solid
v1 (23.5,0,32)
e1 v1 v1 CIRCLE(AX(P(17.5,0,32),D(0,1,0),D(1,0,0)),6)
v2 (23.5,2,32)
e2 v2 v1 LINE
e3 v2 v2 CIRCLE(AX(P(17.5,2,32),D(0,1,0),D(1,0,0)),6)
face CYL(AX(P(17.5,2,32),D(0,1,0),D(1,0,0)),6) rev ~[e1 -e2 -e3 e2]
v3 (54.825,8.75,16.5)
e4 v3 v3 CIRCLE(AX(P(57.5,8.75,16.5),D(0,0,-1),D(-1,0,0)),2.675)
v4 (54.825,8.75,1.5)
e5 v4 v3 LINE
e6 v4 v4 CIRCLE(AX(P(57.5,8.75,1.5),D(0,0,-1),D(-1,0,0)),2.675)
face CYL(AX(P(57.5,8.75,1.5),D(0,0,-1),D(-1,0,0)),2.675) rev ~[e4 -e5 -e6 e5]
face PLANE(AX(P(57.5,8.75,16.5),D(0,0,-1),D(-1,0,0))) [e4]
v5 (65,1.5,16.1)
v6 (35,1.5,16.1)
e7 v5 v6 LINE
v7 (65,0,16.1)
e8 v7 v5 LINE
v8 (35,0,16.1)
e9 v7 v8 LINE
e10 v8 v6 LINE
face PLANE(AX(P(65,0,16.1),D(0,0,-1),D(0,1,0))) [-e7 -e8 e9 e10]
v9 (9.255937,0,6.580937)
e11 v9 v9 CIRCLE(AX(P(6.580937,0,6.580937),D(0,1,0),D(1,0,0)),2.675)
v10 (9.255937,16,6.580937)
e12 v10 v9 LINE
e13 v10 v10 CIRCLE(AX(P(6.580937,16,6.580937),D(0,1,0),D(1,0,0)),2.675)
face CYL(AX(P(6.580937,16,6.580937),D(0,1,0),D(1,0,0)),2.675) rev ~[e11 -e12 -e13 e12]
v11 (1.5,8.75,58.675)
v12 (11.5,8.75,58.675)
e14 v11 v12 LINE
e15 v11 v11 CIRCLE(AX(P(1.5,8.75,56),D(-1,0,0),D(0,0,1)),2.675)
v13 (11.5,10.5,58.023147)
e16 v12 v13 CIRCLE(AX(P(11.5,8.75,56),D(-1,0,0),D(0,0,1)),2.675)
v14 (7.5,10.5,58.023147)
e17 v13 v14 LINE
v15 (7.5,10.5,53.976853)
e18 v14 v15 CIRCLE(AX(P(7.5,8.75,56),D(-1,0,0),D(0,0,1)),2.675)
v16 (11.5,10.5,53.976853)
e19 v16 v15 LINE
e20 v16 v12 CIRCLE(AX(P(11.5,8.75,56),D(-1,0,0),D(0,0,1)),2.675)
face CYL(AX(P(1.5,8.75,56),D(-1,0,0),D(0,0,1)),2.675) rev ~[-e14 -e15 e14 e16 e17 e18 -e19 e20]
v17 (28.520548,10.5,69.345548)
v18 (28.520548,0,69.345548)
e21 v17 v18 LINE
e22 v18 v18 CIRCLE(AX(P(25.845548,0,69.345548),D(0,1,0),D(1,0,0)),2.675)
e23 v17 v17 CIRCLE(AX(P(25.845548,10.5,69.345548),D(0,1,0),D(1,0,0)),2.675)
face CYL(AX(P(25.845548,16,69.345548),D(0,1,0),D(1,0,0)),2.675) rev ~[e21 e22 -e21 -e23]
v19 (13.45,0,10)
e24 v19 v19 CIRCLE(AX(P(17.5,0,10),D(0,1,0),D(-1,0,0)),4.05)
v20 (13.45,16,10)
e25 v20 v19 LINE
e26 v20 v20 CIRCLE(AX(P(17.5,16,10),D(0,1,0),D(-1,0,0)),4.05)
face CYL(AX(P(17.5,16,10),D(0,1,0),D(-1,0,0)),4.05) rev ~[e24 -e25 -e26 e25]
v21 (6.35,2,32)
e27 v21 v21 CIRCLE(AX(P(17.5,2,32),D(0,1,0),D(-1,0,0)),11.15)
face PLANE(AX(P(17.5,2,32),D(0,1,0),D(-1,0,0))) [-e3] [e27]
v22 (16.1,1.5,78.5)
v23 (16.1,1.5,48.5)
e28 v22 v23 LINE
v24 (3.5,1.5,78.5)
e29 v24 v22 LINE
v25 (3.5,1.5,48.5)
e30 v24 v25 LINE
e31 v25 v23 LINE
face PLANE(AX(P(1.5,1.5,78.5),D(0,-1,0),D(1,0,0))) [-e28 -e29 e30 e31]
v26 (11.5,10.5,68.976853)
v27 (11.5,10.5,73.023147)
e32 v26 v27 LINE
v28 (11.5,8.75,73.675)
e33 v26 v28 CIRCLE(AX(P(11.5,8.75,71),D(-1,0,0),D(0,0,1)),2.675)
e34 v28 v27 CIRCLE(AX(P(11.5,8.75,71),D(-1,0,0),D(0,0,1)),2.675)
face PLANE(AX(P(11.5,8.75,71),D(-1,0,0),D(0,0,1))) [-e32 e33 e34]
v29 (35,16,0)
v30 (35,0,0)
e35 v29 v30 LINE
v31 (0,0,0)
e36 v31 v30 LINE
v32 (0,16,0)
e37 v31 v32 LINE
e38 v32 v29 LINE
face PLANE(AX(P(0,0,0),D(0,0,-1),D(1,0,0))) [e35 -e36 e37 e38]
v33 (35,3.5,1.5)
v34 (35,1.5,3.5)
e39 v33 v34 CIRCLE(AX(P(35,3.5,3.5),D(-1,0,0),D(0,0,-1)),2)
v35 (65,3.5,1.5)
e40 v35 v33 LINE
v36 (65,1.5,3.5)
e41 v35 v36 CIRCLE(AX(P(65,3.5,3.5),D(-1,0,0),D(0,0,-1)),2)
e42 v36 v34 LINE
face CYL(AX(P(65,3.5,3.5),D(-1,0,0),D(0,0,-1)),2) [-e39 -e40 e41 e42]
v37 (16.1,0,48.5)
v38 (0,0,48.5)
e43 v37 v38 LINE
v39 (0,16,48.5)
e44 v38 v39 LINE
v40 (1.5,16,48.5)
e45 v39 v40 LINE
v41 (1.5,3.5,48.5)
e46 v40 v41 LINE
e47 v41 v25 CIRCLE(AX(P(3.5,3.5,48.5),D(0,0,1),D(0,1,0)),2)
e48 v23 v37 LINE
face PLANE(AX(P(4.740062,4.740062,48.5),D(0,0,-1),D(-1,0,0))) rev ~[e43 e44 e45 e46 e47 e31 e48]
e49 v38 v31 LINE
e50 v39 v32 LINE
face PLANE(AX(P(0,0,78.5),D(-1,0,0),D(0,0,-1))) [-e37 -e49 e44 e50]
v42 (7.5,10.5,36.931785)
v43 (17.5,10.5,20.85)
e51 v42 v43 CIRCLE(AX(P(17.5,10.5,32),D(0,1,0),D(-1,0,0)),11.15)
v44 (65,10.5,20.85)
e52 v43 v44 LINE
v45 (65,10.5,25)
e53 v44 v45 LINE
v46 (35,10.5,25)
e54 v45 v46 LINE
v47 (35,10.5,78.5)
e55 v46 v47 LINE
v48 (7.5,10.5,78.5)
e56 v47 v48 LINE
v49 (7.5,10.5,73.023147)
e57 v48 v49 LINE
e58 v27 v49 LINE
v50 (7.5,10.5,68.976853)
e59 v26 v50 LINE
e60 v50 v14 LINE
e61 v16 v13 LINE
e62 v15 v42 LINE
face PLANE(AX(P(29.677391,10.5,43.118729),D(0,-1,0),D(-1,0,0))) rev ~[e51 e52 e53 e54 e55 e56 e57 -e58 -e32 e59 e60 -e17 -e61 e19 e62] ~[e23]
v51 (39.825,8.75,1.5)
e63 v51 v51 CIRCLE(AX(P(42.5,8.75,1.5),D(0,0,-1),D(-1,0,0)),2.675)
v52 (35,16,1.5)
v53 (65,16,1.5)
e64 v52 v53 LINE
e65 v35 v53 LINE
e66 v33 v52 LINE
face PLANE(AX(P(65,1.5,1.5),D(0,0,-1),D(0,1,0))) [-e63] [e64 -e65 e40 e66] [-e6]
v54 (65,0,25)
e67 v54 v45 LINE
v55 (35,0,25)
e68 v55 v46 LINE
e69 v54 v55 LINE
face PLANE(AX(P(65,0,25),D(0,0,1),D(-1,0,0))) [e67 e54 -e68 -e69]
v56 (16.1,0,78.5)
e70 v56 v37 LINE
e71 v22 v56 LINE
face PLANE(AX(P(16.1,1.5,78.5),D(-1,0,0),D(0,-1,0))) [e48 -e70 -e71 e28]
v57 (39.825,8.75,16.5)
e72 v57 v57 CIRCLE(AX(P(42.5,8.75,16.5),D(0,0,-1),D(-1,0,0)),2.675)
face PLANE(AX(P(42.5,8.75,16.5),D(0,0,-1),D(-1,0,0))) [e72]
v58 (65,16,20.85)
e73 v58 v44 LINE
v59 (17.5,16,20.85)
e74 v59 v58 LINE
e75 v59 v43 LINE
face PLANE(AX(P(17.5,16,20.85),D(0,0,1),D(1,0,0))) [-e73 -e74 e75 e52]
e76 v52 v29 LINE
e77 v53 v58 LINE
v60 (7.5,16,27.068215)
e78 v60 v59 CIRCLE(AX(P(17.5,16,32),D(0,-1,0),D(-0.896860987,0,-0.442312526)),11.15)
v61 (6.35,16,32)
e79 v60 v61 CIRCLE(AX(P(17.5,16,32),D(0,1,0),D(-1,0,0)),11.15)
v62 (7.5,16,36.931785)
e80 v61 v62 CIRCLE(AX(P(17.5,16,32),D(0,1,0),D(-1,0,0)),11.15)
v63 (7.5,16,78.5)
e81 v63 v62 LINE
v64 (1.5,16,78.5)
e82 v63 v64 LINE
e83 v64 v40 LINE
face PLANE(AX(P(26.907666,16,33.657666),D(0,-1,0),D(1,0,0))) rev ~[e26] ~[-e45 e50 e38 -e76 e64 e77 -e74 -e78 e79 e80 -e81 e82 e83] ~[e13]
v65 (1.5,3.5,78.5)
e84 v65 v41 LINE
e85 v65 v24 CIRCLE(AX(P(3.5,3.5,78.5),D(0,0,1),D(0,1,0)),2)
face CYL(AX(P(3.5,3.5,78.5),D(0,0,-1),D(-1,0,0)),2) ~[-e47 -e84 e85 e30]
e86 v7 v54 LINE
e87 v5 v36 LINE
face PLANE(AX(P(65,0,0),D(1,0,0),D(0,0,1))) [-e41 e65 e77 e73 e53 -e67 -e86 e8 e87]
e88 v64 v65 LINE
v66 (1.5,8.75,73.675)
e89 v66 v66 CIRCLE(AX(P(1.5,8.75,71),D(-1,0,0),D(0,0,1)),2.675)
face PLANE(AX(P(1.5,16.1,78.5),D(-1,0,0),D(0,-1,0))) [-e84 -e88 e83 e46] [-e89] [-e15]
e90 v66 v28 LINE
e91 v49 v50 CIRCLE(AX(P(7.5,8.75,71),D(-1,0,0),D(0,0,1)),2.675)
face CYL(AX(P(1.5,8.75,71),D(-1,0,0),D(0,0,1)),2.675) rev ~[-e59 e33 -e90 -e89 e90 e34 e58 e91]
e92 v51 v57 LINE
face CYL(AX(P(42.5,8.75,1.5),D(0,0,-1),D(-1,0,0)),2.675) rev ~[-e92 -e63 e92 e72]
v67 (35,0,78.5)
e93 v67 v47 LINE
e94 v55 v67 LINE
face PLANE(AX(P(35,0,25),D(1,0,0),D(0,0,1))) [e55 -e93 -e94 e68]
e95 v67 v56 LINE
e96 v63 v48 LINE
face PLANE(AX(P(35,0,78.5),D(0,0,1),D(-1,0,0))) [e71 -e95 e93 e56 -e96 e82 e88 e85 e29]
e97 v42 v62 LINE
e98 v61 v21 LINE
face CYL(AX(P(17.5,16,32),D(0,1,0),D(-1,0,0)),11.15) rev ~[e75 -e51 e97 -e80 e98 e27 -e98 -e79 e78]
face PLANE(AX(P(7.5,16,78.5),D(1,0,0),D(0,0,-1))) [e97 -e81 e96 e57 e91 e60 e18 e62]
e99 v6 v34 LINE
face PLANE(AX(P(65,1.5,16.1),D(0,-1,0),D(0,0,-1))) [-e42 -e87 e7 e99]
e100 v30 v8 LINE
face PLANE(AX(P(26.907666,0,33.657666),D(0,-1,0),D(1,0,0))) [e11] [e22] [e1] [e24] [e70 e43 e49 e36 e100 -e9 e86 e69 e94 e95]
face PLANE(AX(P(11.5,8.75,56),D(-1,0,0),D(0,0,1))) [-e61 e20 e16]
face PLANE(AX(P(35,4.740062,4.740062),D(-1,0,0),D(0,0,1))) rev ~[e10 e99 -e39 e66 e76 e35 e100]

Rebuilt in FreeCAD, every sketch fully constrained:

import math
import FreeCAD as App
import Part
import Sketcher
from FreeCAD import Vector


def edges_at(feature, points):
    """Names of the edges that pass closest to the given points."""
    edges = feature.Shape.Edges
    near = lambda p: min(range(len(edges)), key=lambda i: edges[i].distToShape(Part.Vertex(*p))[0])
    return sorted({f"Edge{near(p) + 1}" for p in points})

doc = App.newDocument("Part")
body = doc.addObject("PartDesign::Body", "Body")

sketch1 = body.newObject("Sketcher::SketchObject", "Sketch")
sketch1.AttachmentSupport = (doc.getObject("XZ_Plane"), [""])
sketch1.MapMode = "FlatFace"
sketch1.addGeometry(Part.LineSegment(Vector(65, 0, 0), Vector(0, 0, 0)), False)
sketch1.addGeometry(Part.LineSegment(Vector(0, 0, 0), Vector(0, 78, 0)), False)
sketch1.addGeometry(Part.LineSegment(Vector(0, 78, 0), Vector(35, 78, 0)), False)
sketch1.addGeometry(Part.LineSegment(Vector(35, 78, 0), Vector(35, 25, 0)), False)
sketch1.addGeometry(Part.LineSegment(Vector(35, 25, 0), Vector(65, 25, 0)), False)
sketch1.addGeometry(Part.LineSegment(Vector(65, 25, 0), Vector(65, 0, 0)), False)
sketch1.addConstraint(Sketcher.Constraint("Coincident", 0, 2, 1, 1))
sketch1.addConstraint(Sketcher.Constraint("Coincident", 1, 2, 2, 1))
sketch1.addConstraint(Sketcher.Constraint("Coincident", 2, 2, 3, 1))
sketch1.addConstraint(Sketcher.Constraint("Coincident", 3, 2, 4, 1))
sketch1.addConstraint(Sketcher.Constraint("Coincident", 4, 2, 5, 1))
sketch1.addConstraint(Sketcher.Constraint("Coincident", 5, 2, 0, 1))
sketch1.addConstraint(Sketcher.Constraint("Horizontal", 0))
sketch1.addConstraint(Sketcher.Constraint("Vertical", 1))
sketch1.addConstraint(Sketcher.Constraint("Horizontal", 2))
sketch1.addConstraint(Sketcher.Constraint("Vertical", 3))
sketch1.addConstraint(Sketcher.Constraint("Horizontal", 4))
sketch1.addConstraint(Sketcher.Constraint("Vertical", 5))
sketch1.addConstraint(Sketcher.Constraint("Coincident", 0, 2, -1, 1))
sketch1.addConstraint(Sketcher.Constraint("DistanceX", 0, 2, 0, 1, 65.0))
sketch1.addConstraint(Sketcher.Constraint("DistanceX", 2, 1, 2, 2, 35.0))
sketch1.addConstraint(Sketcher.Constraint("DistanceY", 5, 2, 5, 1, 25.0))
sketch1.addConstraint(Sketcher.Constraint("DistanceY", 1, 1, 1, 2, 78.5))
pad1 = body.newObject("PartDesign::Pad", "Pad")
pad1.Profile = sketch1
pad1.Length = 16
pad1.Reversed = True

sketch2 = body.newObject("Sketcher::SketchObject", "Sketch001")
sketch2.AttachmentSupport = (doc.getObject("XZ_Plane"), [""])
sketch2.MapMode = "FlatFace"
sketch2.AttachmentOffset = App.Placement(Vector(0, 0, -16), App.Rotation())
sketch2.addGeometry(Part.Circle(Vector(18, 32, 0), Vector(0, 0, 1), 11), False)
sketch2.addConstraint(Sketcher.Constraint("Diameter", 0, 22.3))
sketch2.addConstraint(Sketcher.Constraint("DistanceY", -1, 1, 0, 3, 32.0))
sketch2.addConstraint(Sketcher.Constraint("DistanceX", -1, 1, 0, 3, 17.5))
pocket1 = body.newObject("PartDesign::Pocket", "Pocket")
pocket1.Profile = sketch2
pocket1.Length = 14
pocket1.Reversed = True

sketch3 = body.newObject("Sketcher::SketchObject", "Sketch002")
sketch3.AttachmentSupport = (doc.getObject("XZ_Plane"), [""])
sketch3.MapMode = "FlatFace"
sketch3.AttachmentOffset = App.Placement(Vector(0, 0, -2), App.Rotation())
sketch3.addGeometry(Part.Circle(Vector(18, 32, 0), Vector(0, 0, 1), 6), False)
sketch3.addConstraint(Sketcher.Constraint("Diameter", 0, 12.0))
sketch3.addConstraint(Sketcher.Constraint("DistanceY", -1, 1, 0, 3, 32.0))
sketch3.addConstraint(Sketcher.Constraint("DistanceX", -1, 1, 0, 3, 17.5))
pocket2 = body.newObject("PartDesign::Pocket", "Pocket001")
pocket2.Profile = sketch3
pocket2.Type = "ThroughAll"
pocket2.Reversed = True

sketch4 = body.newObject("Sketcher::SketchObject", "Sketch003")
sketch4.AttachmentSupport = (doc.getObject("XZ_Plane"), [""])
sketch4.MapMode = "FlatFace"
sketch4.AttachmentOffset = App.Placement(Vector(0, 0, -16), App.Rotation())
sketch4.addGeometry(Part.Circle(Vector(17.5, 10, 0), Vector(0, 0, 1), 4), False)
sketch4.addConstraint(Sketcher.Constraint("Diameter", 0, 8.1))
sketch4.addConstraint(Sketcher.Constraint("DistanceY", -1, 1, 0, 3, 10.0))
sketch4.addConstraint(Sketcher.Constraint("DistanceX", -1, 1, 0, 3, 17.5))
pocket3 = body.newObject("PartDesign::Pocket", "Pocket002")
pocket3.Profile = sketch4
pocket3.Type = "ThroughAll"
pocket3.Reversed = True

sketch5 = body.newObject("Sketcher::SketchObject", "Sketch004")
sketch5.AttachmentSupport = (doc.getObject("YZ_Plane"), [""])
sketch5.MapMode = "FlatFace"
sketch5.AttachmentOffset = App.Placement(Vector(0, 0, 65), App.Rotation())
sketch5.addGeometry(Part.LineSegment(Vector(1.5, 16.1, 0), Vector(0, 16.1, 0)), False)
sketch5.addGeometry(Part.LineSegment(Vector(0, 16.1, 0), Vector(0, 0, 0)), False)
sketch5.addGeometry(Part.LineSegment(Vector(0, 0, 0), Vector(16.1, 0, 0)), False)
sketch5.addGeometry(Part.LineSegment(Vector(16.1, 0, 0), Vector(16.1, 1.5, 0)), False)
sketch5.addGeometry(Part.LineSegment(Vector(16.1, 1.5, 0), Vector(1.5, 1.5, 0)), False)
sketch5.addGeometry(Part.LineSegment(Vector(1.5, 1.5, 0), Vector(1.5, 16.1, 0)), False)
sketch5.addConstraint(Sketcher.Constraint("Coincident", 0, 2, 1, 1))
sketch5.addConstraint(Sketcher.Constraint("Coincident", 1, 2, 2, 1))
sketch5.addConstraint(Sketcher.Constraint("Coincident", 2, 2, 3, 1))
sketch5.addConstraint(Sketcher.Constraint("Coincident", 3, 2, 4, 1))
sketch5.addConstraint(Sketcher.Constraint("Coincident", 4, 2, 5, 1))
sketch5.addConstraint(Sketcher.Constraint("Coincident", 5, 2, 0, 1))
sketch5.addConstraint(Sketcher.Constraint("Horizontal", 0))
sketch5.addConstraint(Sketcher.Constraint("Vertical", 1))
sketch5.addConstraint(Sketcher.Constraint("Horizontal", 2))
sketch5.addConstraint(Sketcher.Constraint("Vertical", 3))
sketch5.addConstraint(Sketcher.Constraint("Horizontal", 4))
sketch5.addConstraint(Sketcher.Constraint("Vertical", 5))
sketch5.addConstraint(Sketcher.Constraint("Coincident", 1, 2, -1, 1))
sketch5.addConstraint(Sketcher.Constraint("Equal", 2, 1))
sketch5.addConstraint(Sketcher.Constraint("Equal", 0, 3))
sketch5.addConstraint(Sketcher.Constraint("DistanceX", 0, 2, 0, 1, 1.5))
sketch5.addConstraint(Sketcher.Constraint("DistanceX", 2, 1, 2, 2, 16.1))
pocket4 = body.newObject("PartDesign::Pocket", "Pocket003")
pocket4.Profile = sketch5
pocket4.Length = 30

sketch6 = body.newObject("Sketcher::SketchObject", "Sketch005")
sketch6.AttachmentSupport = (doc.getObject("XY_Plane"), [""])
sketch6.MapMode = "FlatFace"
sketch6.AttachmentOffset = App.Placement(Vector(0, 0, 1.5), App.Rotation())
sketch6.addGeometry(Part.Circle(Vector(42.5, 8.8, 0), Vector(0, 0, 1), 2.7), False)
sketch6.addGeometry(Part.Circle(Vector(57.5, 8.8, 0), Vector(0, 0, 1), 2.7), False)
sketch6.addConstraint(Sketcher.Constraint("Equal", 0, 1))
sketch6.addConstraint(Sketcher.Constraint("Horizontal", 0, 3, 1, 3))
sketch6.addConstraint(Sketcher.Constraint("Diameter", 0, 5.35))
sketch6.addConstraint(Sketcher.Constraint("DistanceX", 0, 3, 1, 3, 15.0))
sketch6.addConstraint(Sketcher.Constraint("DistanceX", -1, 1, 0, 3, 42.5))
sketch6.addConstraint(Sketcher.Constraint("DistanceY", -1, 1, 0, 3, 8.75))
pocket5 = body.newObject("PartDesign::Pocket", "Pocket004")
pocket5.Profile = sketch6
pocket5.Length = 15
pocket5.Reversed = True

sketch7 = body.newObject("Sketcher::SketchObject", "Sketch006")
sketch7.AttachmentSupport = (doc.getObject("XY_Plane"), [""])
sketch7.MapMode = "FlatFace"
sketch7.AttachmentOffset = App.Placement(Vector(0, 0, 78.5), App.Rotation())
sketch7.addGeometry(Part.LineSegment(Vector(0, 16.1, 0), Vector(0, 0, 0)), False)
sketch7.addGeometry(Part.LineSegment(Vector(0, 0, 0), Vector(16.1, 0, 0)), False)
sketch7.addGeometry(Part.LineSegment(Vector(16.1, 0, 0), Vector(16.1, 1.5, 0)), False)
sketch7.addGeometry(Part.LineSegment(Vector(16.1, 1.5, 0), Vector(1.5, 1.5, 0)), False)
sketch7.addGeometry(Part.LineSegment(Vector(1.5, 1.5, 0), Vector(1.5, 16.1, 0)), False)
sketch7.addGeometry(Part.LineSegment(Vector(1.5, 16.1, 0), Vector(0, 16.1, 0)), False)
sketch7.addConstraint(Sketcher.Constraint("Coincident", 0, 2, 1, 1))
sketch7.addConstraint(Sketcher.Constraint("Coincident", 1, 2, 2, 1))
sketch7.addConstraint(Sketcher.Constraint("Coincident", 2, 2, 3, 1))
sketch7.addConstraint(Sketcher.Constraint("Coincident", 3, 2, 4, 1))
sketch7.addConstraint(Sketcher.Constraint("Coincident", 4, 2, 5, 1))
sketch7.addConstraint(Sketcher.Constraint("Coincident", 5, 2, 0, 1))
sketch7.addConstraint(Sketcher.Constraint("Vertical", 0))
sketch7.addConstraint(Sketcher.Constraint("Horizontal", 1))
sketch7.addConstraint(Sketcher.Constraint("Vertical", 2))
sketch7.addConstraint(Sketcher.Constraint("Horizontal", 3))
sketch7.addConstraint(Sketcher.Constraint("Vertical", 4))
sketch7.addConstraint(Sketcher.Constraint("Horizontal", 5))
sketch7.addConstraint(Sketcher.Constraint("Coincident", 0, 2, -1, 1))
sketch7.addConstraint(Sketcher.Constraint("Equal", 1, 0))
sketch7.addConstraint(Sketcher.Constraint("Equal", 5, 2))
sketch7.addConstraint(Sketcher.Constraint("DistanceX", 1, 1, 1, 2, 16.1))
sketch7.addConstraint(Sketcher.Constraint("DistanceX", 3, 2, 3, 1, 14.6))
pocket6 = body.newObject("PartDesign::Pocket", "Pocket005")
pocket6.Profile = sketch7
pocket6.Length = 30

sketch8 = body.newObject("Sketcher::SketchObject", "Sketch007")
sketch8.AttachmentSupport = (doc.getObject("YZ_Plane"), [""])
sketch8.MapMode = "FlatFace"
sketch8.AttachmentOffset = App.Placement(Vector(0, 0, 1.5), App.Rotation())
sketch8.addGeometry(Part.Circle(Vector(8.8, 56, 0), Vector(0, 0, 1), 2.7), False)
sketch8.addGeometry(Part.Circle(Vector(8.8, 71, 0), Vector(0, 0, 1), 2.7), False)
sketch8.addConstraint(Sketcher.Constraint("Equal", 0, 1))
sketch8.addConstraint(Sketcher.Constraint("Vertical", 0, 3, 1, 3))
sketch8.addConstraint(Sketcher.Constraint("Diameter", 0, 5.35))
sketch8.addConstraint(Sketcher.Constraint("DistanceY", -1, 1, 0, 3, 56.0))
sketch8.addConstraint(Sketcher.Constraint("DistanceY", -1, 1, 1, 3, 71.0))
sketch8.addConstraint(Sketcher.Constraint("DistanceX", -1, 1, 0, 3, 8.75))
pocket7 = body.newObject("PartDesign::Pocket", "Pocket006")
pocket7.Profile = sketch8
pocket7.Length = 10
pocket7.Reversed = True

sketch9 = body.newObject("Sketcher::SketchObject", "Sketch008")
sketch9.AttachmentSupport = (doc.getObject("XZ_Plane"), [""])
sketch9.MapMode = "FlatFace"
sketch9.AttachmentOffset = App.Placement(Vector(0, 0, -16), App.Rotation())
sketch9.addGeometry(Part.Circle(Vector(6.6, 6.6, 0), Vector(0, 0, 1), 2.7), False)
sketch9.addGeometry(Part.Circle(Vector(25.8, 69.3, 0), Vector(0, 0, 1), 2.7), False)
sketch9.addConstraint(Sketcher.Constraint("Equal", 0, 1))
sketch9.addConstraint(Sketcher.Constraint("Diameter", 0, 5.35))
sketch9.addConstraint(Sketcher.Constraint("DistanceX", -1, 1, 1, 3, 25.845548))
sketch9.addConstraint(Sketcher.Constraint("DistanceY", -1, 1, 1, 3, 69.345548))
sketch9.addConstraint(Sketcher.Constraint("DistanceX", 0, 3, 1, 3, 19.264611))
sketch9.addConstraint(Sketcher.Constraint("DistanceY", 0, 3, 1, 3, 62.764611))
pocket8 = body.newObject("PartDesign::Pocket", "Pocket007")
pocket8.Profile = sketch9
pocket8.Type = "ThroughAll"
pocket8.Reversed = True

sketch10 = body.newObject("Sketcher::SketchObject", "Sketch009")
sketch10.AttachmentSupport = (doc.getObject("XZ_Plane"), [""])
sketch10.MapMode = "FlatFace"
sketch10.AttachmentOffset = App.Placement(Vector(0, 0, -16), App.Rotation())
sketch10.addGeometry(Part.LineSegment(Vector(7.5, 78.5, 0), Vector(35, 78.5, 0)), False)
sketch10.addGeometry(Part.LineSegment(Vector(35, 78.5, 0), Vector(35, 25, 0)), False)
sketch10.addGeometry(Part.LineSegment(Vector(35, 25, 0), Vector(65, 25, 0)), False)
sketch10.addGeometry(Part.LineSegment(Vector(65, 25, 0), Vector(65, 20.9, 0)), False)
sketch10.addGeometry(Part.LineSegment(Vector(65, 20.9, 0), Vector(17.5, 20.9, 0)), False)
sketch10.addGeometry(Part.ArcOfCircle(Part.Circle(Vector(17.5, 32, 0), Vector(0, 0, 1), 11.2), math.radians(-154), math.radians(-90)), False)
sketch10.addGeometry(Part.LineSegment(Vector(7.5, 27.1, 0), Vector(7.5, 78.5, 0)), False)
sketch10.addConstraint(Sketcher.Constraint("Coincident", 0, 2, 1, 1))
sketch10.addConstraint(Sketcher.Constraint("Coincident", 1, 2, 2, 1))
sketch10.addConstraint(Sketcher.Constraint("Coincident", 2, 2, 3, 1))
sketch10.addConstraint(Sketcher.Constraint("Coincident", 3, 2, 4, 1))
sketch10.addConstraint(Sketcher.Constraint("Tangent", 4, 2, 5, 2))
sketch10.addConstraint(Sketcher.Constraint("Coincident", 5, 1, 6, 1))
sketch10.addConstraint(Sketcher.Constraint("Coincident", 6, 2, 0, 1))
sketch10.addConstraint(Sketcher.Constraint("Horizontal", 0))
sketch10.addConstraint(Sketcher.Constraint("Vertical", 1))
sketch10.addConstraint(Sketcher.Constraint("Horizontal", 2))
sketch10.addConstraint(Sketcher.Constraint("Vertical", 3))
sketch10.addConstraint(Sketcher.Constraint("Horizontal", 4))
sketch10.addConstraint(Sketcher.Constraint("Vertical", 6))
sketch10.addConstraint(Sketcher.Constraint("DistanceX", 2, 1, 2, 2, 30.0))
sketch10.addConstraint(Sketcher.Constraint("Radius", 5, 11.15))
sketch10.addConstraint(Sketcher.Constraint("DistanceX", 0, 1, 0, 2, 27.5))
sketch10.addConstraint(Sketcher.Constraint("DistanceX", 4, 2, 4, 1, 47.5))
sketch10.addConstraint(Sketcher.Constraint("DistanceY", 1, 2, 1, 1, 53.5))
sketch10.addConstraint(Sketcher.Constraint("DistanceY", -1, 1, 5, 3, 32.0))
sketch10.addConstraint(Sketcher.Constraint("DistanceX", -1, 1, 0, 2, 35.0))
sketch10.addConstraint(Sketcher.Constraint("DistanceY", -1, 1, 1, 2, 25.0))
pocket9 = body.newObject("PartDesign::Pocket", "Pocket008")
pocket9.Profile = sketch10
pocket9.Length = 5.5
pocket9.Reversed = True
doc.recompute()

fillet = body.newObject("PartDesign::Fillet", "Fillet")
fillet.Base = (pocket9, edges_at(pocket9, [(50, 1.5, 1.5), (1.5, 1.5, 63.5)]))
fillet.Radius = 2

doc.recompute()
